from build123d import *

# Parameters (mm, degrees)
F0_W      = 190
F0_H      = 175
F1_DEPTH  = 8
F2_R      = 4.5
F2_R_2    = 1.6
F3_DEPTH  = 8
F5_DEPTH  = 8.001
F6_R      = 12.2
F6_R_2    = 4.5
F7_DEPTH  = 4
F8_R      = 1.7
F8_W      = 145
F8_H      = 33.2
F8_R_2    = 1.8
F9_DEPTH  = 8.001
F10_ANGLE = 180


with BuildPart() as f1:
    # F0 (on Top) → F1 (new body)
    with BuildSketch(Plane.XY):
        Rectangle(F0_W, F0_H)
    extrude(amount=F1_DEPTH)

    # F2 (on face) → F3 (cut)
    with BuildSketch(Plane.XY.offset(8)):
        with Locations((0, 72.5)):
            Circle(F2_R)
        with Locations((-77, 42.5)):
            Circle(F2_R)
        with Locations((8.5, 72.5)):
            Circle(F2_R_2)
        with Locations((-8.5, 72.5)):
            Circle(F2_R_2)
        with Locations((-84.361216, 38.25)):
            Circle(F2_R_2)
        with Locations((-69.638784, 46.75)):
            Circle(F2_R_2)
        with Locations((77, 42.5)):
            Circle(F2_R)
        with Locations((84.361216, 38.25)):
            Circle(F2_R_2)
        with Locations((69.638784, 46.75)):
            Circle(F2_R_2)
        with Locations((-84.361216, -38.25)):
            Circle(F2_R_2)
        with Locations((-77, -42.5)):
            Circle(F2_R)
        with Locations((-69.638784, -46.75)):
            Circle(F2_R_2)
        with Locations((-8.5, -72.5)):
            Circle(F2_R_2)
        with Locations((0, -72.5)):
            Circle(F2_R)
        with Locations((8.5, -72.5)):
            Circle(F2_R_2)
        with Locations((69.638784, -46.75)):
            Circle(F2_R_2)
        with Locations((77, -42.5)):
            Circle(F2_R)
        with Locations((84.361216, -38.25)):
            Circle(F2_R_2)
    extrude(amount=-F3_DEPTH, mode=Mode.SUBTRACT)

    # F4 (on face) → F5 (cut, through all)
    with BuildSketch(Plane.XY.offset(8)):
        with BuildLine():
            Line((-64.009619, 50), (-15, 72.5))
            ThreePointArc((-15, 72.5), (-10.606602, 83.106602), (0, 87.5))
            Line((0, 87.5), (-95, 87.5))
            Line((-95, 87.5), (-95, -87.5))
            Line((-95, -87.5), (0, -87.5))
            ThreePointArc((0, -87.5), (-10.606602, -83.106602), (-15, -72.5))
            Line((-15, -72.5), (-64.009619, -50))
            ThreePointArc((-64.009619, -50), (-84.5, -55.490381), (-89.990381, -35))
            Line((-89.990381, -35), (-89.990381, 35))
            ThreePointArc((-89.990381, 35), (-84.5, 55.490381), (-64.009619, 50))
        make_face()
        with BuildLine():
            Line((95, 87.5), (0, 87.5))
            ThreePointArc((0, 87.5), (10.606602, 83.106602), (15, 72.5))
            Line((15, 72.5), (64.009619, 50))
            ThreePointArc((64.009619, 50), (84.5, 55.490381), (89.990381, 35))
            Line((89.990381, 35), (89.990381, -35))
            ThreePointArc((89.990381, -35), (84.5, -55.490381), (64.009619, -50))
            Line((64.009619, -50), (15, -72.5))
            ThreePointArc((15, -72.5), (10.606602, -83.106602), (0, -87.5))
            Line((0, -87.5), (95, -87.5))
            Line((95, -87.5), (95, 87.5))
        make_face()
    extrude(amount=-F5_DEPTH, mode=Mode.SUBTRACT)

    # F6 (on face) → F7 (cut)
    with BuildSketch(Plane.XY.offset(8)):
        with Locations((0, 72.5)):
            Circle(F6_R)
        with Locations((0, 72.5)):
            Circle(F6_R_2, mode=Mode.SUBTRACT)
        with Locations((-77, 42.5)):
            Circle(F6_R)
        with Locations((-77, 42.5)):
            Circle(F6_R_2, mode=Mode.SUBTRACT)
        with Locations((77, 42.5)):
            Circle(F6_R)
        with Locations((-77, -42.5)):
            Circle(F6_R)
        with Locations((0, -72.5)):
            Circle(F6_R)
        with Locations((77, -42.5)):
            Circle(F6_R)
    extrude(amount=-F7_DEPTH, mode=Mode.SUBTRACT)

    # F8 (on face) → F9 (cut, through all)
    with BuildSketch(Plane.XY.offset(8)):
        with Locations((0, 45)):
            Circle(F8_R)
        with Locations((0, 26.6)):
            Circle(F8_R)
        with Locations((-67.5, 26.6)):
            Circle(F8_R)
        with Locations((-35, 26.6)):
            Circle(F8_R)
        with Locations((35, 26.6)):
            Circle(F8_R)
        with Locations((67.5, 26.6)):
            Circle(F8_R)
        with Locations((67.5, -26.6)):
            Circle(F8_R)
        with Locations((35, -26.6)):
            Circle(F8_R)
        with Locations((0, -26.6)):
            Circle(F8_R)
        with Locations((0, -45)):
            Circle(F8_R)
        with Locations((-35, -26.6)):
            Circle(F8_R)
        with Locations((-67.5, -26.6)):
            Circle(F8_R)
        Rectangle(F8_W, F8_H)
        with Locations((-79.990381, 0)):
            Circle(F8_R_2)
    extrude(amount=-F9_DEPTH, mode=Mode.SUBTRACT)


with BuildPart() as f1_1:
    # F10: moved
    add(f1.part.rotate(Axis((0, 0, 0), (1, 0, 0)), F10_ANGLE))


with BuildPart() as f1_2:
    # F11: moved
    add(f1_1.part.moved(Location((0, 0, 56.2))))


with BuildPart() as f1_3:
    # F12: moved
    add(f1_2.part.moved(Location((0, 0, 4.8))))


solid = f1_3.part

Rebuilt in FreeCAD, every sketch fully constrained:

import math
import FreeCAD as App
import Part
import Sketcher
from FreeCAD import Vector


def add_polygon(sketch, points):
    """Adds a closed chain of lines whose ends are joined by coincident constraints."""
    first, n = sketch.GeometryCount, len(points)
    for a, b in zip(points, points[1:] + points[:1]):
        sketch.addGeometry(Part.LineSegment(App.Vector(*a, 0), App.Vector(*b, 0)), False)
    for i in range(n):
        sketch.addConstraint(Sketcher.Constraint("Coincident", first + i, 2, first + (i + 1) % n, 1))

doc = App.newDocument("Part")
body = doc.addObject("PartDesign::Body", "Body")

sketch1 = body.newObject("Sketcher::SketchObject", "Sketch")
sketch1.AttachmentSupport = (doc.getObject("XY_Plane"), [""])
sketch1.MapMode = "FlatFace"
add_polygon(sketch1, [(-95, 87.5), (-95, -87.5), (95, -87.5), (95, 87.5)])
sketch1.addConstraint([
    Sketcher.Constraint("Vertical", 0),
    Sketcher.Constraint("Horizontal", 1),
    Sketcher.Constraint("Vertical", 2),
    Sketcher.Constraint("Horizontal", 3),
    Sketcher.Constraint("Symmetric", 0, 2, 2, 2, -1, 1),
    Sketcher.Constraint("DistanceX", 1, 1, 1, 2, 190.0),
    Sketcher.Constraint("DistanceY", 0, 2, 0, 1, 175.0),
])
pad1 = body.newObject("PartDesign::Pad", "Pad")
pad1.Profile = sketch1
pad1.Length = 8

sketch2 = body.newObject("Sketcher::SketchObject", "Sketch001")
sketch2.AttachmentSupport = (doc.getObject("XY_Plane"), [""])
sketch2.MapMode = "FlatFace"
sketch2.AttachmentOffset = App.Placement(Vector(0, 0, 8), App.Rotation())
sketch2.addGeometry([
    Part.Circle(Vector(0, 72.5, 0), Vector(0, 0, 1), 4.5),
    Part.Circle(Vector(-77, 42.5, 0), Vector(0, 0, 1), 4.5),
    Part.Circle(Vector(8.5, 72.5, 0), Vector(0, 0, 1), 1.6),
    Part.Circle(Vector(-8.5, 72.5, 0), Vector(0, 0, 1), 1.6),
    Part.Circle(Vector(-84.361216, 38.25, 0), Vector(0, 0, 1), 1.6),
    Part.Circle(Vector(-69.638784, 46.75, 0), Vector(0, 0, 1), 1.6),
    Part.Circle(Vector(77, 42.5, 0), Vector(0, 0, 1), 4.5),
    Part.Circle(Vector(84.361216, 38.25, 0), Vector(0, 0, 1), 1.6),
    Part.Circle(Vector(69.638784, 46.75, 0), Vector(0, 0, 1), 1.6),
    Part.Circle(Vector(-84.361216, -38.25, 0), Vector(0, 0, 1), 1.6),
    Part.Circle(Vector(-77, -42.5, 0), Vector(0, 0, 1), 4.5),
    Part.Circle(Vector(-69.638784, -46.75, 0), Vector(0, 0, 1), 1.6),
    Part.Circle(Vector(-8.5, -72.5, 0), Vector(0, 0, 1), 1.6),
    Part.Circle(Vector(0, -72.5, 0), Vector(0, 0, 1), 4.5),
    Part.Circle(Vector(8.5, -72.5, 0), Vector(0, 0, 1), 1.6),
    Part.Circle(Vector(69.638784, -46.75, 0), Vector(0, 0, 1), 1.6),
    Part.Circle(Vector(77, -42.5, 0), Vector(0, 0, 1), 4.5),
    Part.Circle(Vector(84.361216, -38.25, 0), Vector(0, 0, 1), 1.6),
], False)
sketch2.addConstraint([
    Sketcher.Constraint("Equal", 0, 1),
    Sketcher.Constraint("Equal", 2, 3),
    Sketcher.Constraint("Equal", 3, 4),
    Sketcher.Constraint("Equal", 4, 5),
    Sketcher.Constraint("Equal", 1, 6),
    Sketcher.Constraint("Equal", 5, 7),
    Sketcher.Constraint("Equal", 7, 8),
    Sketcher.Constraint("Equal", 8, 9),
    Sketcher.Constraint("Equal", 6, 10),
    Sketcher.Constraint("Equal", 9, 11),
    Sketcher.Constraint("Equal", 11, 12),
    Sketcher.Constraint("Equal", 10, 13),
    Sketcher.Constraint("Equal", 12, 14),
    Sketcher.Constraint("Equal", 14, 15),
    Sketcher.Constraint("Equal", 13, 16),
    Sketcher.Constraint("Equal", 15, 17),
    Sketcher.Constraint("Symmetric", 7, 3, 9, 3, -1, 1),
    Sketcher.Constraint("Symmetric", 6, 3, 10, 3, -1, 1),
    Sketcher.Constraint("Symmetric", 8, 3, 11, 3, -1, 1),
    Sketcher.Constraint("Symmetric", 2, 3, 12, 3, -1, 1),
    Sketcher.Constraint("Symmetric", 0, 3, 13, 3, -1, 1),
    Sketcher.Constraint("Symmetric", 3, 3, 14, 3, -1, 1),
    Sketcher.Constraint("Symmetric", 5, 3, 15, 3, -1, 1),
    Sketcher.Constraint("Symmetric", 1, 3, 16, 3, -1, 1),
    Sketcher.Constraint("Symmetric", 4, 3, 17, 3, -1, 1),
    Sketcher.Constraint("Symmetric", 2, 3, 3, 3, -2),
    Sketcher.Constraint("Symmetric", 1, 3, 6, 3, -2),
    Sketcher.Constraint("Symmetric", 4, 3, 7, 3, -2),
    Sketcher.Constraint("Symmetric", 5, 3, 8, 3, -2),
    Sketcher.Constraint("PointOnObject", 0, 3, -2),
    Sketcher.Constraint("Horizontal", 0, 3, 2, 3),
    Sketcher.Constraint("Diameter", 0, 9.0),
    Sketcher.Constraint("Diameter", 2, 3.2),
    Sketcher.Constraint("DistanceX", 1, 3, -1, 1, 77.0),
    Sketcher.Constraint("DistanceY", 1, 3, 0, 3, 30.0),
    Sketcher.Constraint("DistanceX", 3, 3, 2, 3, 17.0),
    Sketcher.Constraint("DistanceX", 5, 3, 7, 3, 154.0),
    Sketcher.Constraint("DistanceY", 9, 3, 5, 3, 85.0),
    Sketcher.Constraint("DistanceY", 10, 3, 1, 3, 85.0),
    Sketcher.Constraint("DistanceY", 4, 3, 5, 3, 8.5),
    Sketcher.Constraint("DistanceX", 4, 3, 5, 3, 14.722432),
])
pocket1 = body.newObject("PartDesign::Pocket", "Pocket")
pocket1.Profile = sketch2
pocket1.Length = 8

sketch3 = body.newObject("Sketcher::SketchObject", "Sketch002")
sketch3.AttachmentSupport = (doc.getObject("XY_Plane"), [""])
sketch3.MapMode = "FlatFace"
sketch3.AttachmentOffset = App.Placement(Vector(0, 0, 8), App.Rotation())
sketch3.addGeometry([
    Part.LineSegment(Vector(-64.009619, 50, 0), Vector(-15, 72.5, 0)),
    Part.ArcOfCircle(Part.Circle(Vector(-0.000001, 72.500001, 0), Vector(0, 0, 1), 14.999999), math.radians(89.999996), math.radians(180.000004)),
    Part.LineSegment(Vector(0, 87.5, 0), Vector(-95, 87.5, 0)),
    Part.LineSegment(Vector(-95, 87.5, 0), Vector(-95, -87.5, 0)),
    Part.LineSegment(Vector(-95, -87.5, 0), Vector(0, -87.5, 0)),
    Part.ArcOfCircle(Part.Circle(Vector(-0.000001, -72.500001, 0), Vector(0, 0, 1), 14.999999), math.radians(179.999996), math.radians(270.000004)),
    Part.LineSegment(Vector(-15, -72.5, 0), Vector(-64.009619, -50, 0)),
    Part.ArcOfCircle(Part.Circle(Vector(-77, -42.5, 0), Vector(0, 0, 1), 15), math.radians(150), math.radians(330)),
    Part.LineSegment(Vector(-89.990381, -35, 0), Vector(-89.990381, 35, 0)),
    Part.ArcOfCircle(Part.Circle(Vector(-77, 42.5, 0), Vector(0, 0, 1), 15), math.radians(30), math.radians(210)),
    Part.LineSegment(Vector(95, 87.5, 0), Vector(0, 87.5, 0)),
    Part.ArcOfCircle(Part.Circle(Vector(0.000001, 72.500001, 0), Vector(0, 0, 1), 14.999999), math.radians(-0.000004), math.radians(90.000004)),
    Part.LineSegment(Vector(15, 72.5, 0), Vector(64.009619, 50, 0)),
    Part.ArcOfCircle(Part.Circle(Vector(77, 42.5, 0), Vector(0, 0, 1), 15), math.radians(-30), math.radians(150)),
    Part.LineSegment(Vector(89.990381, 35, 0), Vector(89.990381, -35, 0)),
    Part.ArcOfCircle(Part.Circle(Vector(77, -42.5, 0), Vector(0, 0, 1), 15), math.radians(-150), math.radians(30)),
    Part.LineSegment(Vector(64.009619, -50, 0), Vector(15, -72.5, 0)),
    Part.ArcOfCircle(Part.Circle(Vector(0.000001, -72.500001, 0), Vector(0, 0, 1), 14.999999), math.radians(-90.000004), math.radians(0.000004)),
    Part.LineSegment(Vector(0, -87.5, 0), Vector(95, -87.5, 0)),
    Part.LineSegment(Vector(95, -87.5, 0), Vector(95, 87.5, 0)),
], False)
sketch3.addConstraint([
    Sketcher.Constraint("Coincident", 0, 2, 1, 2),
    Sketcher.Constraint("Tangent", 1, 1, 2, 1),
    Sketcher.Constraint("Coincident", 2, 2, 3, 1),
    Sketcher.Constraint("Coincident", 3, 2, 4, 1),
    Sketcher.Constraint("Tangent", 4, 2, 5, 2),
    Sketcher.Constraint("Coincident", 5, 1, 6, 1),
    Sketcher.Constraint("Coincident", 6, 2, 7, 2),
    Sketcher.Constraint("Coincident", 7, 1, 8, 1),
    Sketcher.Constraint("Coincident", 8, 2, 9, 2),
    Sketcher.Constraint("Coincident", 9, 1, 0, 1),
    Sketcher.Constraint("Tangent", 10, 2, 11, 2),
    Sketcher.Constraint("Coincident", 11, 1, 12, 1),
    Sketcher.Constraint("Coincident", 12, 2, 13, 2),
    Sketcher.Constraint("Coincident", 13, 1, 14, 1),
    Sketcher.Constraint("Coincident", 14, 2, 15, 2),
    Sketcher.Constraint("Coincident", 15, 1, 16, 1),
    Sketcher.Constraint("Coincident", 16, 2, 17, 2),
    Sketcher.Constraint("Tangent", 17, 1, 18, 1),
    Sketcher.Constraint("Coincident", 18, 2, 19, 1),
    Sketcher.Constraint("Coincident", 19, 2, 10, 1),
    Sketcher.Constraint("Horizontal", 2),
    Sketcher.Constraint("Vertical", 3),
    Sketcher.Constraint("Horizontal", 4),
    Sketcher.Constraint("Vertical", 8),
    Sketcher.Constraint("Horizontal", 10),
    Sketcher.Constraint("Vertical", 14),
    Sketcher.Constraint("Horizontal", 18),
    Sketcher.Constraint("Vertical", 19),
    Sketcher.Constraint("Coincident", 11, 3, 1, 3),
    Sketcher.Constraint("Coincident", 17, 3, 5, 3),
    Sketcher.Constraint("Equal", 1, 5),
    Sketcher.Constraint("Equal", 5, 7),
    Sketcher.Constraint("Equal", 7, 9),
    Sketcher.Constraint("Equal", 9, 11),
    Sketcher.Constraint("Equal", 11, 13),
    Sketcher.Constraint("Equal", 13, 15),
    Sketcher.Constraint("Equal", 15, 17),
    Sketcher.Constraint("Symmetric", 1, 3, 5, 3, -1, 1),
    Sketcher.Constraint("Symmetric", 7, 3, 13, 3, -1, 1),
    Sketcher.Constraint("Symmetric", 9, 3, 15, 3, -1, 1),
    Sketcher.Constraint("Symmetric", 9, 3, 13, 3, -2),
    Sketcher.Constraint("Symmetric", 0, 2, 11, 1, -2),
    Sketcher.Constraint("Parallel", 6, 12),
    Sketcher.Constraint("Parallel", 0, 16),
    Sketcher.Constraint("Horizontal", 11, 3, 0, 2),
    Sketcher.Constraint("Horizontal", 17, 3, 5, 1),
    Sketcher.Constraint("Horizontal", 9, 1, 12, 2),
    Sketcher.Constraint("Horizontal", 8, 2, 13, 1),
    Sketcher.Constraint("Horizontal", 6, 2, 15, 1),
    Sketcher.Constraint("Equal", 4, 10),
    Sketcher.Constraint("Radius", 1, 14.999999),
    Sketcher.Constraint("DistanceX", 2, 2, 2, 1, 95.0),
    Sketcher.Constraint("DistanceY", 3, 2, 3, 1, 175.0),
    Sketcher.Constraint("DistanceY", 8, 1, 8, 2, 70.0),
    Sketcher.Constraint("DistanceX", 7, 3, -1, 1, 77.0),
    Sketcher.Constraint("DistanceY", 6, 2, -1, 1, 50.0),
    Sketcher.Constraint("DistanceY", 5, 3, 7, 3, 30.000001),
])
pocket2 = body.newObject("PartDesign::Pocket", "Pocket001")
pocket2.Profile = sketch3
pocket2.Type = "ThroughAll"

sketch4 = body.newObject("Sketcher::SketchObject", "Sketch003")
sketch4.AttachmentSupport = (doc.getObject("XY_Plane"), [""])
sketch4.MapMode = "FlatFace"
sketch4.AttachmentOffset = App.Placement(Vector(0, 0, 8), App.Rotation())
sketch4.addGeometry([
    Part.Circle(Vector(0, 72.5, 0), Vector(0, 0, 1), 12.2),
    Part.Circle(Vector(0, 72.5, 0), Vector(0, 0, 1), 4.5),
    Part.Circle(Vector(-77, 42.5, 0), Vector(0, 0, 1), 12.2),
    Part.Circle(Vector(-77, 42.5, 0), Vector(0, 0, 1), 4.5),
    Part.Circle(Vector(77, 42.5, 0), Vector(0, 0, 1), 12.2),
    Part.Circle(Vector(-77, -42.5, 0), Vector(0, 0, 1), 12.2),
    Part.Circle(Vector(0, -72.5, 0), Vector(0, 0, 1), 12.2),
    Part.Circle(Vector(77, -42.5, 0), Vector(0, 0, 1), 12.2),
], False)
sketch4.addConstraint([
    Sketcher.Constraint("Coincident", 1, 3, 0, 3),
    Sketcher.Constraint("Coincident", 3, 3, 2, 3),
    Sketcher.Constraint("Equal", 0, 2),
    Sketcher.Constraint("Equal", 1, 3),
    Sketcher.Constraint("Equal", 2, 4),
    Sketcher.Constraint("Equal", 4, 5),
    Sketcher.Constraint("Equal", 5, 6),
    Sketcher.Constraint("Equal", 6, 7),
    Sketcher.Constraint("Symmetric", 4, 3, 5, 3, -1, 1),
    Sketcher.Constraint("Symmetric", 0, 3, 6, 3, -1, 1),
    Sketcher.Constraint("Symmetric", 2, 3, 7, 3, -1, 1),
    Sketcher.Constraint("Symmetric", 2, 3, 4, 3, -2),
    Sketcher.Constraint("PointOnObject", 0, 3, -2),
    Sketcher.Constraint("Diameter", 1, 9.0),
    Sketcher.Constraint("Diameter", 0, 24.4),
    Sketcher.Constraint("DistanceX", 2, 3, -1, 1, 77.0),
    Sketcher.Constraint("DistanceY", 2, 3, 0, 3, 30.0),
    Sketcher.Constraint("DistanceY", 5, 3, 2, 3, 85.0),
])
pocket3 = body.newObject("PartDesign::Pocket", "Pocket002")
pocket3.Profile = sketch4
pocket3.Length = 4

sketch5 = body.newObject("Sketcher::SketchObject", "Sketch004")
sketch5.AttachmentSupport = (doc.getObject("XY_Plane"), [""])
sketch5.MapMode = "FlatFace"
sketch5.AttachmentOffset = App.Placement(Vector(0, 0, 8), App.Rotation())
sketch5.addGeometry(Part.Circle(Vector(0, 45, 0), Vector(0, 0, 1), 1.7), False)
sketch5.addGeometry(Part.Circle(Vector(0, 26.6, 0), Vector(0, 0, 1), 1.7), False)
sketch5.addGeometry(Part.Circle(Vector(-67.5, 26.6, 0), Vector(0, 0, 1), 1.7), False)
sketch5.addGeometry(Part.Circle(Vector(-35, 26.6, 0), Vector(0, 0, 1), 1.7), False)
sketch5.addGeometry(Part.Circle(Vector(35, 26.6, 0), Vector(0, 0, 1), 1.7), False)
sketch5.addGeometry(Part.Circle(Vector(67.5, 26.6, 0), Vector(0, 0, 1), 1.7), False)
sketch5.addGeometry(Part.Circle(Vector(67.5, -26.6, 0), Vector(0, 0, 1), 1.7), False)
sketch5.addGeometry(Part.Circle(Vector(35, -26.6, 0), Vector(0, 0, 1), 1.7), False)
sketch5.addGeometry(Part.Circle(Vector(0, -26.6, 0), Vector(0, 0, 1), 1.7), False)
sketch5.addGeometry(Part.Circle(Vector(0, -45, 0), Vector(0, 0, 1), 1.7), False)
sketch5.addGeometry(Part.Circle(Vector(-35, -26.6, 0), Vector(0, 0, 1), 1.7), False)
sketch5.addGeometry(Part.Circle(Vector(-67.5, -26.6, 0), Vector(0, 0, 1), 1.7), False)
add_polygon(sketch5, [(-72.5, 16.6), (-72.5, -16.6), (72.5, -16.6), (72.5, 16.6)])
sketch5.addGeometry(Part.Circle(Vector(-79.990381, 0, 0), Vector(0, 0, 1), 1.8), False)
sketch5.addConstraint([
    Sketcher.Constraint("Vertical", 12),
    Sketcher.Constraint("Horizontal", 13),
    Sketcher.Constraint("Vertical", 14),
    Sketcher.Constraint("Horizontal", 15),
    Sketcher.Constraint("Equal", 0, 1),
    Sketcher.Constraint("Equal", 1, 2),
    Sketcher.Constraint("Equal", 2, 3),
    Sketcher.Constraint("Equal", 3, 4),
    Sketcher.Constraint("Equal", 4, 5),
    Sketcher.Constraint("Equal", 5, 6),
    Sketcher.Constraint("Equal", 6, 7),
    Sketcher.Constraint("Equal", 7, 8),
    Sketcher.Constraint("Equal", 8, 9),
    Sketcher.Constraint("Equal", 9, 10),
    Sketcher.Constraint("Equal", 10, 11),
    Sketcher.Constraint("Symmetric", 2, 3, 6, 3, -1, 1),
    Sketcher.Constraint("Symmetric", 3, 3, 7, 3, -1, 1),
    Sketcher.Constraint("Symmetric", 1, 3, 8, 3, -1, 1),
    Sketcher.Constraint("Symmetric", 0, 3, 9, 3, -1, 1),
    Sketcher.Constraint("Symmetric", 4, 3, 10, 3, -1, 1),
    Sketcher.Constraint("Symmetric", 5, 3, 11, 3, -1, 1),
    Sketcher.Constraint("Symmetric", 12, 2, 14, 2, -1, 1),
    Sketcher.Constraint("Symmetric", 3, 3, 4, 3, -2),
    Sketcher.Constraint("Symmetric", 2, 3, 5, 3, -2),
    Sketcher.Constraint("PointOnObject", 0, 3, -2),
    Sketcher.Constraint("PointOnObject", 1, 3, -2),
    Sketcher.Constraint("PointOnObject", 16, 3, -1),
    Sketcher.Constraint("Horizontal", 1, 3, 2, 3),
    Sketcher.Constraint("Horizontal", 2, 3, 3, 3),
    Sketcher.Constraint("Diameter", 0, 3.4),
    Sketcher.Constraint("Diameter", 16, 3.6),
    Sketcher.Constraint("DistanceX", 13, 1, 13, 2, 145.0),
    Sketcher.Constraint("DistanceY", 12, 2, 12, 1, 33.2),
    Sketcher.Constraint("DistanceY", -1, 1, 0, 3, 45.0),
    Sketcher.Constraint("DistanceX", 3, 3, -1, 1, 35.0),
    Sketcher.Constraint("DistanceX", 2, 3, 5, 3, 135.0),
    Sketcher.Constraint("DistanceY", 11, 3, 12, 2, 10.0),
    Sketcher.Constraint("DistanceX", 16, 3, -1, 1, 79.990381),
])
pocket4 = body.newObject("PartDesign::Pocket", "Pocket003")
pocket4.Profile = sketch5
pocket4.Type = "ThroughAll"
body2 = doc.addObject("PartDesign::Body", "Body001")
doc.recompute()

body.Placement = App.Placement(Vector(0, 0, 0), App.Rotation(Vector(1, 0, 0), 180))
boolean = body2.newObject("PartDesign::Boolean", "Boolean")
boolean.Type = "Fuse"
boolean.addObjects([body])
body3 = doc.addObject("PartDesign::Body", "Body002")
doc.recompute()

body2.Placement = App.Placement(Vector(0, 0, 56.2), App.Rotation(Vector(0, 0, 1), 0))
boolean2 = body3.newObject("PartDesign::Boolean", "Boolean001")
boolean2.Type = "Fuse"
boolean2.addObjects([body2])
body4 = doc.addObject("PartDesign::Body", "Body003")
doc.recompute()

body3.Placement = App.Placement(Vector(0, 0, 4.8), App.Rotation(Vector(0, 0, 1), 0))
boolean3 = body4.newObject("PartDesign::Boolean", "Boolean002")
boolean3.Type = "Fuse"
boolean3.addObjects([body3])

doc.recompute()
